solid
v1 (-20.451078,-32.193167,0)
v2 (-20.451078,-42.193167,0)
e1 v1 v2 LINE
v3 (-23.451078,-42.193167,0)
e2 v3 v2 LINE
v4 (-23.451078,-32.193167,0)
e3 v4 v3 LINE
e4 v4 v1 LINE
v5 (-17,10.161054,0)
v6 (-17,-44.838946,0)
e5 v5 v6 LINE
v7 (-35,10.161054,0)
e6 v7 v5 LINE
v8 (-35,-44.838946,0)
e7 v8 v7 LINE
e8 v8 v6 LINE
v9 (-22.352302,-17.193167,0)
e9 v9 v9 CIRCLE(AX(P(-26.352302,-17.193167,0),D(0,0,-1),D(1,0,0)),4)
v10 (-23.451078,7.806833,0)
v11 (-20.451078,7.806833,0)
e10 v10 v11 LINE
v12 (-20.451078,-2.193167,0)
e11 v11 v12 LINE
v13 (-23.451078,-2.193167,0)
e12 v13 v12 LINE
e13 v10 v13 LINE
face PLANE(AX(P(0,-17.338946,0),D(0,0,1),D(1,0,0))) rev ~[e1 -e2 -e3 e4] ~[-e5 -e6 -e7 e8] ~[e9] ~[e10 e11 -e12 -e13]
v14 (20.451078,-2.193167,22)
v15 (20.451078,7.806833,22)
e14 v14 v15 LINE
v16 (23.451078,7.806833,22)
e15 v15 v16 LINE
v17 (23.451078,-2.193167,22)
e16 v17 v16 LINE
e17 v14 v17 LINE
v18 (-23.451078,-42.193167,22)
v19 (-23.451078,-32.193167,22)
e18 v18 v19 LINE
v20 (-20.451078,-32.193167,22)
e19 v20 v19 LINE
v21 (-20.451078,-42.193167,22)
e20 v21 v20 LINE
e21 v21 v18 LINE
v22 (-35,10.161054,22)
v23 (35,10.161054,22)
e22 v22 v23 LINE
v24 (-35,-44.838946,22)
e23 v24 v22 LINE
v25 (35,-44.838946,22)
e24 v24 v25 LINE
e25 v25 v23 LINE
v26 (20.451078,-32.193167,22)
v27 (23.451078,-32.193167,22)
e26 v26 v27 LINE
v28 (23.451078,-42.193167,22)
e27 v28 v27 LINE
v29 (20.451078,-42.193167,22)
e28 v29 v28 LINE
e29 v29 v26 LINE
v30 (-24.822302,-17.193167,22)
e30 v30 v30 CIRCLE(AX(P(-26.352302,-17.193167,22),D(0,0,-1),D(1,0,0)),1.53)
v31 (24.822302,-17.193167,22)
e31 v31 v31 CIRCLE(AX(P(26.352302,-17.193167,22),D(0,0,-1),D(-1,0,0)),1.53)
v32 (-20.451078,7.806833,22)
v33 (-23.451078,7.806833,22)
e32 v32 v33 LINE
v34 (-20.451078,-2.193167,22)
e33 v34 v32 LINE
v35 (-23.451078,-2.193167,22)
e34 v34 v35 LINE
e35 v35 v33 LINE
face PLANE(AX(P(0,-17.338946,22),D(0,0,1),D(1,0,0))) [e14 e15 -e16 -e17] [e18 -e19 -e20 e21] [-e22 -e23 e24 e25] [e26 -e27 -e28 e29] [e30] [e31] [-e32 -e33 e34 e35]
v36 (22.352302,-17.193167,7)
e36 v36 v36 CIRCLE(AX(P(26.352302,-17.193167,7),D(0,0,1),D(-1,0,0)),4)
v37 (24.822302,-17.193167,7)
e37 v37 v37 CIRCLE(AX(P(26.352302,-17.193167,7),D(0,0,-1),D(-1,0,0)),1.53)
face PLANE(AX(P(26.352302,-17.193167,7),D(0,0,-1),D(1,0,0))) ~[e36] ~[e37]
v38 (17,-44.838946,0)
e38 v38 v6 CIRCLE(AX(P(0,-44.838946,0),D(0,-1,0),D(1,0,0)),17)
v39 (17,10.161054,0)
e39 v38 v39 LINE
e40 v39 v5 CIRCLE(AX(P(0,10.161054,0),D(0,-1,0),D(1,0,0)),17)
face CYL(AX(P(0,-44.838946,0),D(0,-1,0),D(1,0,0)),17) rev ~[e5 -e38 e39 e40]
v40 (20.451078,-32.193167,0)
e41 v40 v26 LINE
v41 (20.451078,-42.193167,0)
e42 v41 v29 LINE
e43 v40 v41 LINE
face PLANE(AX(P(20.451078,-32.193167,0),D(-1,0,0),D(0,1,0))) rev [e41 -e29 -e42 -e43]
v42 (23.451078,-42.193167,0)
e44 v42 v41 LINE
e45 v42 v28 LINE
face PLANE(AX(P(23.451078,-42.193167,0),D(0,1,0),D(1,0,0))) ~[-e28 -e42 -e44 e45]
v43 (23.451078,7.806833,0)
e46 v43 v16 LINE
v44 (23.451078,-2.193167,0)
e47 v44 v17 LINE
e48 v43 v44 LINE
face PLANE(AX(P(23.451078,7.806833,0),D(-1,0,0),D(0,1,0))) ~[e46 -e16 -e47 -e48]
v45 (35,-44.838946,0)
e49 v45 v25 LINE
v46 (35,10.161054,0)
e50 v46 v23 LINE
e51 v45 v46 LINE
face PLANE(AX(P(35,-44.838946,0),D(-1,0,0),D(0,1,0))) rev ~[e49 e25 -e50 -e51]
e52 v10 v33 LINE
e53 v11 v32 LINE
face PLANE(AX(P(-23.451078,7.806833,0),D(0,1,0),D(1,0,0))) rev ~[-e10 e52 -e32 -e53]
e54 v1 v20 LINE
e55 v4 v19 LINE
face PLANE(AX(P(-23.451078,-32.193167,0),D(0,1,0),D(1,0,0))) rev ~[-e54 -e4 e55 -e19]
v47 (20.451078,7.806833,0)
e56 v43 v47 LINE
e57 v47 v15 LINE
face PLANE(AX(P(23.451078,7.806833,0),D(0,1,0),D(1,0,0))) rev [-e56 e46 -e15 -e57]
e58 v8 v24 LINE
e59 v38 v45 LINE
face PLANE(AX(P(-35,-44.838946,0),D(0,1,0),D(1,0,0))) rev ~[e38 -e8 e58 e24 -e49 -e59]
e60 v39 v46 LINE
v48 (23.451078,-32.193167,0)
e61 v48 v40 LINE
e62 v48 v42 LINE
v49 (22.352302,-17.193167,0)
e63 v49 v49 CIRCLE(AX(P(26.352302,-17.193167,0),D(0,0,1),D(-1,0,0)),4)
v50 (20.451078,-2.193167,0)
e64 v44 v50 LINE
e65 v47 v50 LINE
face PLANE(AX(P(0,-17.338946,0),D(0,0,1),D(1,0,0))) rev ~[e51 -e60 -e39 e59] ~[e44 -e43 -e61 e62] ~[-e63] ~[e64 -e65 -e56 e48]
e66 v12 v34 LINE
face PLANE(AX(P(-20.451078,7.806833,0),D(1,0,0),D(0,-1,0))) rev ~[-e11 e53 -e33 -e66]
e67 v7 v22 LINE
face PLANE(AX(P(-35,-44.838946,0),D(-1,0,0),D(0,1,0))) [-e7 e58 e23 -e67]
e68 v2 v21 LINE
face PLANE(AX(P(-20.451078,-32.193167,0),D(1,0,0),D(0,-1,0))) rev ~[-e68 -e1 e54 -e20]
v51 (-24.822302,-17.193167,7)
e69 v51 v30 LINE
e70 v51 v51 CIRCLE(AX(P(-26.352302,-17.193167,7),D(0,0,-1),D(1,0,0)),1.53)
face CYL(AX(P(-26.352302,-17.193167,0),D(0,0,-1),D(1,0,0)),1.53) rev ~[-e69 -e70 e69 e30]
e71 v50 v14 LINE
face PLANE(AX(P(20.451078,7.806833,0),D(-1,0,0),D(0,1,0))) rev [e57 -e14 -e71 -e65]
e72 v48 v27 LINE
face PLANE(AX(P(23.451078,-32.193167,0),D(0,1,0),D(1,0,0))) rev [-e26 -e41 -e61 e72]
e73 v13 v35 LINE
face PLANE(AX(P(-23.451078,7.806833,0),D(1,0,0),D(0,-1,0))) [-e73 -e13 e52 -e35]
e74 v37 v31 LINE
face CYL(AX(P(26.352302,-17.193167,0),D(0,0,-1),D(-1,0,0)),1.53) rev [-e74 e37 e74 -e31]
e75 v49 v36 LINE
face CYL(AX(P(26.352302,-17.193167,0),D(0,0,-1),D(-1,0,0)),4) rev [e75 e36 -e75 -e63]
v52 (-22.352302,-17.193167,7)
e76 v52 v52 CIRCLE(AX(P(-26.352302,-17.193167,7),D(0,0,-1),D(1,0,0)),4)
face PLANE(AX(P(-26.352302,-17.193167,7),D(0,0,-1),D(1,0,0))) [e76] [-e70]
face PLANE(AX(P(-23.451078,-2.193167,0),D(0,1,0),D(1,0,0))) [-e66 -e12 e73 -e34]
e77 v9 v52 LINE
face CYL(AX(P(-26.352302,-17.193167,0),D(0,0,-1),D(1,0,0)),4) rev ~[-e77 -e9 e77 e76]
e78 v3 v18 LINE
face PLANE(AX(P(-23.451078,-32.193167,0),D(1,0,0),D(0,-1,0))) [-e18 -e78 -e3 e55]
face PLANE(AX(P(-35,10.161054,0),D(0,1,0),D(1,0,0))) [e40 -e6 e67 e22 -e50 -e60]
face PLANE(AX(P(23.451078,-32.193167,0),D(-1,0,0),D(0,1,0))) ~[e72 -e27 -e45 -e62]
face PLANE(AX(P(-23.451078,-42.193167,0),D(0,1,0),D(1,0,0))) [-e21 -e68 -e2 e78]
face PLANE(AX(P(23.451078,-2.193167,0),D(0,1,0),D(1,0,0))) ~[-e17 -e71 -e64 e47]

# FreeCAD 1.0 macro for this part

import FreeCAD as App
import Part
import Sketcher

V = App.Vector
Q = App.Units.Quantity


def add_polygon(sketch, points):
    """Adds a closed chain of lines whose ends are joined by coincident constraints."""
    first, n = sketch.GeometryCount, len(points)
    for a, b in zip(points, points[1:] + points[:1]):
        sketch.addGeometry(Part.LineSegment(App.Vector(*a, 0), App.Vector(*b, 0)), False)
    for i in range(n):
        sketch.addConstraint(Sketcher.Constraint("Coincident", first + i, 2, first + (i + 1) % n, 1))

doc = App.newDocument("Part")
params = doc.addObject("Spreadsheet::Sheet", "Params")
for row, (alias, value) in enumerate([
    ("sketch1_width", "70 mm"),
    ("sketch1_height", "55 mm"),
    ("pad1_length", "22 mm"),
    ("sketch2_diameter", "34 mm"),
    ("sketch3_diameter", "3.06 mm"),
    ("sketch3_width", "3 mm"),
    ("sketch3_height", "10 mm"),
    ("sketch4_diameter", "8 mm"),
    ("pocket3_length", "7 mm"),
], start=1):
    params.set(f"A{row}", alias)
    params.set(f"B{row}", "=" + value)
    params.setAlias(f"B{row}", alias)

body = doc.addObject("PartDesign::Body", "Body")

# Sketch on XY plane
sketch1 = doc.addObject("Sketcher::SketchObject", "Sketch")
body.addObject(sketch1)
sketch1.AttachmentSupport = (doc.XY_Plane, [""])
sketch1.MapMode = "FlatFace"
add_polygon(sketch1, [(-35, 10), (-35, -45), (35, -45), (35, 10)])  # lines 0-3
sketch1.addConstraint(Sketcher.Constraint("Vertical", 0))
sketch1.addConstraint(Sketcher.Constraint("Horizontal", 1))
sketch1.addConstraint(Sketcher.Constraint("Vertical", 2))
sketch1.addConstraint(Sketcher.Constraint("Horizontal", 3))
sketch1.addConstraint(Sketcher.Constraint("DistanceX", 1, 1, 1, 2, Q("70 mm")))
sketch1.addConstraint(Sketcher.Constraint("DistanceY", 0, 2, 0, 1, Q("55 mm")))
sketch1.addConstraint(Sketcher.Constraint("DistanceX", 0, 2, -1, 1, Q("35 mm")))
sketch1.addConstraint(Sketcher.Constraint("DistanceY", 0, 2, -1, 1, Q("44.838946 mm")))
sketch1.setExpression("Constraints[8]", "Params.sketch1_width")
sketch1.setExpression("Constraints[9]", "Params.sketch1_height")
pad1 = doc.addObject("PartDesign::Pad", "Pad")
body.addObject(pad1)
pad1.Profile = sketch1
pad1.setExpression("Length", "Params.pad1_length")

# Sketch on XZ plane
sketch2 = doc.addObject("Sketcher::SketchObject", "Sketch001")
body.addObject(sketch2)
sketch2.AttachmentSupport = (doc.XZ_Plane, [""])
sketch2.MapMode = "FlatFace"
sketch2.AttachmentOffset = App.Placement(V(0, 0, 44.838946), App.Rotation())
sketch2.addGeometry(Part.Circle(V(0, 0, 0), V(0, 0, 1), 17), False)
sketch2.addConstraint(Sketcher.Constraint("Coincident", 0, 3, -1, 1))
sketch2.addConstraint(Sketcher.Constraint("Diameter", 0, Q("34 mm")))
sketch2.setExpression("Constraints[1]", "Params.sketch2_diameter")
pocket1 = doc.addObject("PartDesign::Pocket", "Pocket")
body.addObject(pocket1)
pocket1.Profile = sketch2
pocket1.Type = "ThroughAll"

# Sketch on XY plane
sketch3 = doc.addObject("Sketcher::SketchObject", "Sketch002")
body.addObject(sketch3)
sketch3.AttachmentSupport = (doc.XY_Plane, [""])
sketch3.MapMode = "FlatFace"
sketch3.addGeometry(Part.Circle(V(-26.4, -17.2, 0), V(0, 0, 1), 1.5), False)  # 0
add_polygon(sketch3, [(-23.5, -2.2), (-23.5, 7.8), (-20.5, 7.8), (-20.5, -2.2)])  # lines 1-4
add_polygon(sketch3, [(-23.5, -42.2), (-23.5, -32.2), (-20.5, -32.2), (-20.5, -42.2)])  # lines 5-8
sketch3.addConstraint(Sketcher.Constraint("Vertical", 1))
sketch3.addConstraint(Sketcher.Constraint("Horizontal", 2))
sketch3.addConstraint(Sketcher.Constraint("Vertical", 3))
sketch3.addConstraint(Sketcher.Constraint("Horizontal", 4))
sketch3.addConstraint(Sketcher.Constraint("Vertical", 5))
sketch3.addConstraint(Sketcher.Constraint("Horizontal", 6))
sketch3.addConstraint(Sketcher.Constraint("Vertical", 7))
sketch3.addConstraint(Sketcher.Constraint("Horizontal", 8))
sketch3.addConstraint(Sketcher.Constraint("Vertical", 4, 2, 5, 2))
sketch3.addConstraint(Sketcher.Constraint("Vertical", 3, 2, 6, 2))
sketch3.addConstraint(Sketcher.Constraint("Equal", 3, 5))
sketch3.addConstraint(Sketcher.Constraint("Diameter", 0, Q("3.06 mm")))
sketch3.addConstraint(Sketcher.Constraint("DistanceX", 2, 1, 2, 2, Q("3 mm")))
sketch3.addConstraint(Sketcher.Constraint("DistanceY", 1, 1, 1, 2, Q("10 mm")))
sketch3.addConstraint(Sketcher.Constraint("DistanceY", 0, 3, 1, 2, Q("25 mm")))
sketch3.addConstraint(Sketcher.Constraint("DistanceY", 5, 2, 0, 3, Q("15 mm")))
sketch3.addConstraint(Sketcher.Constraint("DistanceX", 0, 3, -1, 1, Q("26.352302 mm")))
sketch3.addConstraint(Sketcher.Constraint("DistanceY", 0, 3, -1, 1, Q("17.193167 mm")))
sketch3.addConstraint(Sketcher.Constraint("DistanceX", 1, 2, -1, 1, Q("23.451078 mm")))
sketch3.setExpression("Constraints[19]", "Params.sketch3_diameter")
sketch3.setExpression("Constraints[20]", "Params.sketch3_width")
sketch3.setExpression("Constraints[21]", "Params.sketch3_height")
pocket2 = doc.addObject("PartDesign::Pocket", "Pocket001")
body.addObject(pocket2)
pocket2.Profile = sketch3
pocket2.Type = "ThroughAll"
pocket2.Reversed = True
doc.recompute()

mirrored = doc.addObject("PartDesign::Mirrored", "Mirrored")
body.addObject(mirrored)
mirrored.Originals = [pocket2]
mirrored.MirrorPlane = (doc.YZ_Plane, [""])
body.Tip = mirrored

# Sketch on XY plane
sketch4 = doc.addObject("Sketcher::SketchObject", "Sketch003")
body.addObject(sketch4)
sketch4.AttachmentSupport = (doc.XY_Plane, [""])
sketch4.MapMode = "FlatFace"
sketch4.addGeometry(Part.Circle(V(-26.4, -17.2, 0), V(0, 0, 1), 4), False)
sketch4.addConstraint(Sketcher.Constraint("Diameter", 0, Q("8 mm")))
sketch4.addConstraint(Sketcher.Constraint("DistanceX", 0, 3, -1, 1, Q("26.352302 mm")))
sketch4.addConstraint(Sketcher.Constraint("DistanceY", 0, 3, -1, 1, Q("17.193167 mm")))
sketch4.setExpression("Constraints[0]", "Params.sketch4_diameter")
pocket3 = doc.addObject("PartDesign::Pocket", "Pocket002")
body.addObject(pocket3)
pocket3.Profile = sketch4
pocket3.setExpression("Length", "Params.pocket3_length")
pocket3.Reversed = True
doc.recompute()

mirrored2 = doc.addObject("PartDesign::Mirrored", "Mirrored001")
body.addObject(mirrored2)
mirrored2.Originals = [pocket3]
mirrored2.MirrorPlane = (doc.YZ_Plane, [""])
body.Tip = mirrored2

doc.recompute()
